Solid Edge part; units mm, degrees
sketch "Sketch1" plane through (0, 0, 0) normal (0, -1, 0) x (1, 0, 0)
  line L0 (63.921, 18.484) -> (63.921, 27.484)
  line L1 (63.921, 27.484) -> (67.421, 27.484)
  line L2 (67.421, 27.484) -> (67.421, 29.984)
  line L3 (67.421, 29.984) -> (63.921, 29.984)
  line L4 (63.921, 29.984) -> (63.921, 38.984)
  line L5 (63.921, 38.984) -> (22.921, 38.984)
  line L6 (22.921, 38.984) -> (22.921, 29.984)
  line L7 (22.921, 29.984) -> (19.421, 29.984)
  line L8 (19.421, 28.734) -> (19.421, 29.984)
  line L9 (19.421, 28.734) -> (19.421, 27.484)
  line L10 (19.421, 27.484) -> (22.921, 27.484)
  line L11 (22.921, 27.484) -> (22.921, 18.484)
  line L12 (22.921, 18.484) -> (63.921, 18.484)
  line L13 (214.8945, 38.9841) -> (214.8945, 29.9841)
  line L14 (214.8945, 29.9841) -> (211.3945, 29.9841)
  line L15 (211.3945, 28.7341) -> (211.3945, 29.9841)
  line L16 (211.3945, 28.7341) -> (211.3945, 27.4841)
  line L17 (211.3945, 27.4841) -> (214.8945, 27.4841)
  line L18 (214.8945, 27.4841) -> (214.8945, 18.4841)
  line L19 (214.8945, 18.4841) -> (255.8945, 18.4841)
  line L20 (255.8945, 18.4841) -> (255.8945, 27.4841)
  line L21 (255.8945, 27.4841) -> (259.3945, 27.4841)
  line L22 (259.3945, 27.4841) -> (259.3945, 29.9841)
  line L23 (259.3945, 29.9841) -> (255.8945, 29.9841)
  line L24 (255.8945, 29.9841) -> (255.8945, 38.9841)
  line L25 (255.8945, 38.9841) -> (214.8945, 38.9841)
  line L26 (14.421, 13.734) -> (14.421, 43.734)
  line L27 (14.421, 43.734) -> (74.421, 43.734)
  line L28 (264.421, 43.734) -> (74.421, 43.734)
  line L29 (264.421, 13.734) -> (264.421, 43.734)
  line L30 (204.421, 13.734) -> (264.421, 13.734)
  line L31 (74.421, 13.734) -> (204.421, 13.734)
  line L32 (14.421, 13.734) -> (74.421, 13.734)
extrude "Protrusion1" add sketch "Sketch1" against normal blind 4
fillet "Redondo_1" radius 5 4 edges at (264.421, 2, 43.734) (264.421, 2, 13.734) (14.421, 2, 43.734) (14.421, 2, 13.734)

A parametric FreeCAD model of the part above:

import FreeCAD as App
import Part
import Sketcher

V = App.Vector


def edges_at(feature, points):
    """Names of the edges that pass closest to the given points."""
    edges = feature.Shape.Edges
    near = lambda p: min(range(len(edges)), key=lambda i: edges[i].distToShape(Part.Vertex(*p))[0])
    return sorted({f"Edge{near(p) + 1}" for p in points})

doc = App.newDocument("Part")
body = doc.addObject("PartDesign::Body", "Body")

sketch1 = body.newObject("Sketcher::SketchObject", "Sketch")
sketch1.AttachmentSupport = (doc.getObject("XZ_Plane"), [""])
sketch1.MapMode = "FlatFace"
sketch1.addGeometry([
    Part.LineSegment(V(14.4, 43.7, 0), V(14.4, 13.7, 0)),
    Part.LineSegment(V(14.4, 13.7, 0), V(264.4, 13.7, 0)),
    Part.LineSegment(V(264.4, 13.7, 0), V(264.4, 43.7, 0)),
    Part.LineSegment(V(264.4, 43.7, 0), V(14.4, 43.7, 0)),
    Part.LineSegment(V(63.9, 27.5, 0), V(63.9, 18.5, 0)),
    Part.LineSegment(V(63.9, 18.5, 0), V(22.9, 18.5, 0)),
    Part.LineSegment(V(22.9, 18.5, 0), V(22.9, 27.5, 0)),
    Part.LineSegment(V(22.9, 27.5, 0), V(19.4, 27.5, 0)),
    Part.LineSegment(V(19.4, 27.5, 0), V(19.4, 30, 0)),
    Part.LineSegment(V(19.4, 30, 0), V(22.9, 30, 0)),
    Part.LineSegment(V(22.9, 30, 0), V(22.9, 39, 0)),
    Part.LineSegment(V(22.9, 39, 0), V(63.9, 39, 0)),
    Part.LineSegment(V(63.9, 39, 0), V(63.9, 30, 0)),
    Part.LineSegment(V(63.9, 30, 0), V(67.4, 30, 0)),
    Part.LineSegment(V(67.4, 30, 0), V(67.4, 27.5, 0)),
    Part.LineSegment(V(67.4, 27.5, 0), V(63.9, 27.5, 0)),
    Part.LineSegment(V(214.9, 30, 0), V(214.9, 39, 0)),
    Part.LineSegment(V(214.9, 39, 0), V(255.9, 39, 0)),
    Part.LineSegment(V(255.9, 39, 0), V(255.9, 30, 0)),
    Part.LineSegment(V(255.9, 30, 0), V(259.4, 30, 0)),
    Part.LineSegment(V(259.4, 30, 0), V(259.4, 27.5, 0)),
    Part.LineSegment(V(259.4, 27.5, 0), V(255.9, 27.5, 0)),
    Part.LineSegment(V(255.9, 27.5, 0), V(255.9, 18.5, 0)),
    Part.LineSegment(V(255.9, 18.5, 0), V(214.9, 18.5, 0)),
    Part.LineSegment(V(214.9, 18.5, 0), V(214.9, 27.5, 0)),
    Part.LineSegment(V(214.9, 27.5, 0), V(211.4, 27.5, 0)),
    Part.LineSegment(V(211.4, 27.5, 0), V(211.4, 30, 0)),
    Part.LineSegment(V(211.4, 30, 0), V(214.9, 30, 0)),
], False)
sketch1.addConstraint([
    Sketcher.Constraint("Coincident", 0, 2, 1, 1),
    Sketcher.Constraint("Coincident", 1, 2, 2, 1),
    Sketcher.Constraint("Coincident", 2, 2, 3, 1),
    Sketcher.Constraint("Coincident", 3, 2, 0, 1),
    Sketcher.Constraint("Coincident", 4, 2, 5, 1),
    Sketcher.Constraint("Coincident", 5, 2, 6, 1),
    Sketcher.Constraint("Coincident", 6, 2, 7, 1),
    Sketcher.Constraint("Coincident", 7, 2, 8, 1),
    Sketcher.Constraint("Coincident", 8, 2, 9, 1),
    Sketcher.Constraint("Coincident", 9, 2, 10, 1),
    Sketcher.Constraint("Coincident", 10, 2, 11, 1),
    Sketcher.Constraint("Coincident", 11, 2, 12, 1),
    Sketcher.Constraint("Coincident", 12, 2, 13, 1),
    Sketcher.Constraint("Coincident", 13, 2, 14, 1),
    Sketcher.Constraint("Coincident", 14, 2, 15, 1),
    Sketcher.Constraint("Coincident", 15, 2, 4, 1),
    Sketcher.Constraint("Coincident", 16, 2, 17, 1),
    Sketcher.Constraint("Coincident", 17, 2, 18, 1),
    Sketcher.Constraint("Coincident", 18, 2, 19, 1),
    Sketcher.Constraint("Coincident", 19, 2, 20, 1),
    Sketcher.Constraint("Coincident", 20, 2, 21, 1),
    Sketcher.Constraint("Coincident", 21, 2, 22, 1),
    Sketcher.Constraint("Coincident", 22, 2, 23, 1),
    Sketcher.Constraint("Coincident", 23, 2, 24, 1),
    Sketcher.Constraint("Coincident", 24, 2, 25, 1),
    Sketcher.Constraint("Coincident", 25, 2, 26, 1),
    Sketcher.Constraint("Coincident", 26, 2, 27, 1),
    Sketcher.Constraint("Coincident", 27, 2, 16, 1),
    Sketcher.Constraint("Vertical", 0),
    Sketcher.Constraint("Horizontal", 1),
    Sketcher.Constraint("Vertical", 2),
    Sketcher.Constraint("Horizontal", 3),
    Sketcher.Constraint("Vertical", 4),
    Sketcher.Constraint("Horizontal", 5),
    Sketcher.Constraint("Vertical", 6),
    Sketcher.Constraint("Horizontal", 7),
    Sketcher.Constraint("Vertical", 8),
    Sketcher.Constraint("Horizontal", 9),
    Sketcher.Constraint("Vertical", 10),
    Sketcher.Constraint("Horizontal", 11),
    Sketcher.Constraint("Vertical", 12),
    Sketcher.Constraint("Horizontal", 13),
    Sketcher.Constraint("Vertical", 14),
    Sketcher.Constraint("Horizontal", 15),
    Sketcher.Constraint("Vertical", 16),
    Sketcher.Constraint("Horizontal", 17),
    Sketcher.Constraint("Vertical", 18),
    Sketcher.Constraint("Horizontal", 19),
    Sketcher.Constraint("Vertical", 20),
    Sketcher.Constraint("Horizontal", 21),
    Sketcher.Constraint("Vertical", 22),
    Sketcher.Constraint("Horizontal", 23),
    Sketcher.Constraint("Vertical", 24),
    Sketcher.Constraint("Horizontal", 25),
    Sketcher.Constraint("Vertical", 26),
    Sketcher.Constraint("Horizontal", 27),
    Sketcher.Constraint("Horizontal", 9, 2, 12, 2),
    Sketcher.Constraint("Horizontal", 7, 2, 14, 2),
    Sketcher.Constraint("Horizontal", 11, 2, 16, 2),
    Sketcher.Constraint("Horizontal", 13, 2, 18, 2),
    Sketcher.Constraint("Horizontal", 15, 2, 20, 2),
    Sketcher.Constraint("Horizontal", 5, 2, 22, 2),
    Sketcher.Constraint("Horizontal", 21, 2, 24, 2),
    Sketcher.Constraint("Horizontal", 19, 2, 26, 2),
    Sketcher.Constraint("Vertical", 6, 2, 9, 2),
    Sketcher.Constraint("Vertical", 4, 2, 11, 2),
    Sketcher.Constraint("Vertical", 18, 2, 21, 2),
    Sketcher.Constraint("Vertical", 16, 2, 23, 2),
    Sketcher.Constraint("Equal", 9, 13),
    Sketcher.Constraint("Equal", 11, 17),
    Sketcher.Constraint("Equal", 15, 19),
    Sketcher.Constraint("Equal", 21, 25),
    Sketcher.Constraint("Equal", 6, 10),
    Sketcher.Constraint("DistanceX", 1, 1, 1, 2, 250.0),
    Sketcher.Constraint("DistanceX", 5, 2, 5, 1, 41.0),
    Sketcher.Constraint("DistanceY", 0, 2, 0, 1, 30.0),
    Sketcher.Constraint("DistanceY", 4, 2, 4, 1, 9.0),
    Sketcher.Constraint("DistanceX", 7, 2, 7, 1, 3.5),
    Sketcher.Constraint("DistanceY", 8, 1, 8, 2, 2.5),
    Sketcher.Constraint("DistanceX", 0, 2, 7, 2, 5.0),
    Sketcher.Constraint("DistanceY", 0, 2, 4, 2, 4.75),
    Sketcher.Constraint("DistanceX", -1, 1, 0, 2, 14.421),
    Sketcher.Constraint("DistanceY", -1, 1, 0, 2, 13.734),
    Sketcher.Constraint("DistanceX", -1, 1, 16, 2, 214.8945),
])
pad1 = body.newObject("PartDesign::Pad", "Pad")
pad1.Profile = sketch1
pad1.Length = 4
pad1.Reversed = True
doc.recompute()

fillet = body.newObject("PartDesign::Fillet", "Fillet")
fillet.Base = (pad1, edges_at(pad1, [
    (264.421, 2, 43.734),
    (264.421, 2, 13.734),
    (14.421, 2, 43.734),
    (14.421, 2, 13.734),
]))
fillet.Radius = 5

doc.recompute()
